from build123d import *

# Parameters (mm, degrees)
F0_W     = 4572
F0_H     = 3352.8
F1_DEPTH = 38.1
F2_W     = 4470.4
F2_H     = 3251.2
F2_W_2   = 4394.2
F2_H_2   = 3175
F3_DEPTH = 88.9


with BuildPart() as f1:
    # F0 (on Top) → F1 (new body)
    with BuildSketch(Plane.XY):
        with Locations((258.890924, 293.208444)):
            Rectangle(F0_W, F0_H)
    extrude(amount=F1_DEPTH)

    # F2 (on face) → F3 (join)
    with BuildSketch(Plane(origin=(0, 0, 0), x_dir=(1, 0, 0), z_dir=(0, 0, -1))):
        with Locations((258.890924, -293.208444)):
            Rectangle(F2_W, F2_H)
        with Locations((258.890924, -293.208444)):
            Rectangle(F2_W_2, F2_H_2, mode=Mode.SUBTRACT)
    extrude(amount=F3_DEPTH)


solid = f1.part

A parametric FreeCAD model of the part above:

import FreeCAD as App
import Part
import Sketcher

V = App.Vector
Q = App.Units.Quantity


def add_polygon(sketch, points):
    """Adds a closed chain of lines whose ends are joined by coincident constraints."""
    first, n = sketch.GeometryCount, len(points)
    for a, b in zip(points, points[1:] + points[:1]):
        sketch.addGeometry(Part.LineSegment(App.Vector(*a, 0), App.Vector(*b, 0)), False)
    for i in range(n):
        sketch.addConstraint(Sketcher.Constraint("Coincident", first + i, 2, first + (i + 1) % n, 1))

doc = App.newDocument("Part")
body = doc.addObject("PartDesign::Body", "Body")

sketch1 = body.newObject("Sketcher::SketchObject", "Sketch")
sketch1.AttachmentSupport = (doc.getObject("XY_Plane"), [""])
sketch1.MapMode = "FlatFace"
add_polygon(sketch1, [(-2027.109076, 1969.608444), (-2027.109076, -1383.191556), (2544.890924, -1383.191556), (2544.890924, 1969.608444)])
sketch1.addConstraint([
    Sketcher.Constraint("Vertical", 0),
    Sketcher.Constraint("Horizontal", 1),
    Sketcher.Constraint("Vertical", 2),
    Sketcher.Constraint("Horizontal", 3),
    Sketcher.Constraint("DistanceX", 1, 1, 1, 2, Q("180 in")),
    Sketcher.Constraint("DistanceY", 0, 2, 0, 1, Q("132 in")),
    Sketcher.Constraint("DistanceX", 0, 2, -1, 1, 2027.109076),
    Sketcher.Constraint("DistanceY", 0, 2, -1, 1, 1383.191556),
])
pad1 = body.newObject("PartDesign::Pad", "Pad")
pad1.Profile = sketch1
pad1.Length = Q("1.5 in")

sketch2 = body.newObject("Sketcher::SketchObject", "Sketch001")
sketch2.AttachmentSupport = (doc.getObject("XY_Plane"), [""])
sketch2.MapMode = "FlatFace"
add_polygon(sketch2, [(-1976.309076, -1332.391556), (-1976.309076, 1918.808444), (2494.090924, 1918.808444), (2494.090924, -1332.391556)])
add_polygon(sketch2, [(2455.990924, 1880.708444), (-1938.209076, 1880.708444), (-1938.209076, -1294.291556), (2455.990924, -1294.291556)])
sketch2.addConstraint([
    Sketcher.Constraint("Vertical", 0),
    Sketcher.Constraint("Horizontal", 1),
    Sketcher.Constraint("Vertical", 2),
    Sketcher.Constraint("Horizontal", 3),
    Sketcher.Constraint("Horizontal", 4),
    Sketcher.Constraint("Vertical", 5),
    Sketcher.Constraint("Horizontal", 6),
    Sketcher.Constraint("Vertical", 7),
    Sketcher.Constraint("DistanceX", 1, 1, 1, 2, Q("176 in")),
    Sketcher.Constraint("DistanceX", 4, 2, 4, 1, Q("173 in")),
    Sketcher.Constraint("DistanceY", 0, 1, 0, 2, Q("128 in")),
    Sketcher.Constraint("DistanceY", 5, 2, 5, 1, Q("125 in")),
    Sketcher.Constraint("DistanceX", 0, 2, 4, 2, Q("1.5 in")),
    Sketcher.Constraint("DistanceY", 4, 2, 0, 2, Q("1.5 in")),
    Sketcher.Constraint("DistanceX", 0, 2, -1, 1, 1976.309076),
    Sketcher.Constraint("DistanceY", -1, 1, 0, 2, 1918.808444),
])
pad2 = body.newObject("PartDesign::Pad", "Pad001")
pad2.Profile = sketch2
pad2.Length = Q("3.5 in")
pad2.Reversed = True

doc.recompute()
